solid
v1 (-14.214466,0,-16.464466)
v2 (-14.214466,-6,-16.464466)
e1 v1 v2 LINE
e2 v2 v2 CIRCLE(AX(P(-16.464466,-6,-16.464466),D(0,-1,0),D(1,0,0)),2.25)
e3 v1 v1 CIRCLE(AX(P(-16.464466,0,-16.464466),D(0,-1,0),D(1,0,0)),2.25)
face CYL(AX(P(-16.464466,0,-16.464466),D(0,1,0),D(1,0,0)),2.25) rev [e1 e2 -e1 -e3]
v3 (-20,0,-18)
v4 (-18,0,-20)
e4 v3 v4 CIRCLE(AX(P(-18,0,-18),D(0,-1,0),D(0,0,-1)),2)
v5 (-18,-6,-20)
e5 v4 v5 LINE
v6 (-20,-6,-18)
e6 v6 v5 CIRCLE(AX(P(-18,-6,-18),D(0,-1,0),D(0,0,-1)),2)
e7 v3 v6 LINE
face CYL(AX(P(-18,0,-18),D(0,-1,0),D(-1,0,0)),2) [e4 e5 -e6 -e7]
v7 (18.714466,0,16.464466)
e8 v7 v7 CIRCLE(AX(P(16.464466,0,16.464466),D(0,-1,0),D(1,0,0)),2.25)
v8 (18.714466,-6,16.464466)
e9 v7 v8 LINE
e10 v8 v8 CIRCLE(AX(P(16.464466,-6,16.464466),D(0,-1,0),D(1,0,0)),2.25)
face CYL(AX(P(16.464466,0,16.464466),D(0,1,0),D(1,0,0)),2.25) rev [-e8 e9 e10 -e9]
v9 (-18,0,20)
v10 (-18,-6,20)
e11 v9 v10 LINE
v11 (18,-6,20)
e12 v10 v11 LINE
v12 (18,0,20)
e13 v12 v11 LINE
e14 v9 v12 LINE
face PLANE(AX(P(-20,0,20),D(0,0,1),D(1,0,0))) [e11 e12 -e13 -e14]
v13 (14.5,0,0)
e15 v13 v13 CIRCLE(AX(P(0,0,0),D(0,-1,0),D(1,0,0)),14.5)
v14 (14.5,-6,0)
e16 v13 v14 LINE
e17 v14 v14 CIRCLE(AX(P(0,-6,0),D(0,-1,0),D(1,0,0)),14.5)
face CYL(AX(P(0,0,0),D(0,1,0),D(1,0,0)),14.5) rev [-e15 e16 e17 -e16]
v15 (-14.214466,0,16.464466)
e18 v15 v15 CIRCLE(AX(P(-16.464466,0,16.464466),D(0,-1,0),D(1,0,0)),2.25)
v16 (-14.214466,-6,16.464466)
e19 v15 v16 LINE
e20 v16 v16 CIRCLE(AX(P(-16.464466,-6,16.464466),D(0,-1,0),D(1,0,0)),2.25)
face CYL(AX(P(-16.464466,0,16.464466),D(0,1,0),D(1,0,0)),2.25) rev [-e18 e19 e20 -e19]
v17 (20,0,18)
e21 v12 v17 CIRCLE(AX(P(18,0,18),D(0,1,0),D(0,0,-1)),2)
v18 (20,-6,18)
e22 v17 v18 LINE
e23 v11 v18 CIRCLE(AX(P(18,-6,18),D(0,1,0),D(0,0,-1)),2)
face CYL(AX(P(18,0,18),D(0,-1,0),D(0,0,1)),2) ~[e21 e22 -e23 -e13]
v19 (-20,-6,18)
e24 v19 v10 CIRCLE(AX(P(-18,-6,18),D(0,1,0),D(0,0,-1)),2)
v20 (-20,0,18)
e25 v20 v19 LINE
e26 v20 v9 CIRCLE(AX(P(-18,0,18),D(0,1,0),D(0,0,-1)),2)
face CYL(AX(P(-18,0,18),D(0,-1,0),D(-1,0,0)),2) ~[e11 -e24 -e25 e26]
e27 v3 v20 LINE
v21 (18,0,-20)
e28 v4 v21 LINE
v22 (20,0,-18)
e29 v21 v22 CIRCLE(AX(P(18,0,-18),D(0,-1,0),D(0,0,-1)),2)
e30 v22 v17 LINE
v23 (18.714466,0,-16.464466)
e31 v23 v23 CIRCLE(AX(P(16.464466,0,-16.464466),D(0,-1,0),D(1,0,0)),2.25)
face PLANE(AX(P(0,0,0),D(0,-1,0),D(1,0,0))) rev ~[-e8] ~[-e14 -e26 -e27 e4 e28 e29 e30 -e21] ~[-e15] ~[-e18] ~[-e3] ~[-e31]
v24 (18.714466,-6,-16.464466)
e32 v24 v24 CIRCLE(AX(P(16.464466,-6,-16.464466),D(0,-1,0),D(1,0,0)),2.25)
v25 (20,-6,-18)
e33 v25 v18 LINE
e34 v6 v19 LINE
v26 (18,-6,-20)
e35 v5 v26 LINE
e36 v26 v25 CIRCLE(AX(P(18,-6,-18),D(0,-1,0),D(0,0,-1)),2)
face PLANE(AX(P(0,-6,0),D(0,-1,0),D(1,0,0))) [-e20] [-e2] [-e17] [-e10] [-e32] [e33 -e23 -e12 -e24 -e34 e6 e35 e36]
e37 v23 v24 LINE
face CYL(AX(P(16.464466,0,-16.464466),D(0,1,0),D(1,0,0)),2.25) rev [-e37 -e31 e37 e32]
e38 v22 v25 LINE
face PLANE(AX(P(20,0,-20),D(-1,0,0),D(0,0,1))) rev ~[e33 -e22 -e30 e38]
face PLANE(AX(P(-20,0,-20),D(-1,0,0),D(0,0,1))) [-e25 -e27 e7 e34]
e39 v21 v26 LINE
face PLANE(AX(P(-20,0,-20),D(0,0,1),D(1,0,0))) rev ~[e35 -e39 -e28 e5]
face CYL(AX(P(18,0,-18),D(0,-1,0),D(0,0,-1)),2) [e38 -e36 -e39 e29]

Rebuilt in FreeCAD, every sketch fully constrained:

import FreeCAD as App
import Part
import Sketcher

V = App.Vector


def edges_at(feature, points):
    """Names of the edges that pass closest to the given points."""
    edges = feature.Shape.Edges
    near = lambda p: min(range(len(edges)), key=lambda i: edges[i].distToShape(Part.Vertex(*p))[0])
    return sorted({f"Edge{near(p) + 1}" for p in points})


def add_polygon(sketch, points):
    """Adds a closed chain of lines whose ends are joined by coincident constraints."""
    first, n = sketch.GeometryCount, len(points)
    for a, b in zip(points, points[1:] + points[:1]):
        sketch.addGeometry(Part.LineSegment(App.Vector(*a, 0), App.Vector(*b, 0)), False)
    for i in range(n):
        sketch.addConstraint(Sketcher.Constraint("Coincident", first + i, 2, first + (i + 1) % n, 1))

doc = App.newDocument("Part")
params = doc.addObject("Spreadsheet::Sheet", "Params")
for row, (alias, value) in enumerate([
    ("sketch1_diameter", "29 mm"),
    ("sketch1_diameter2", "4.5 mm"),
    ("sketch1_width", "40 mm"),
    ("pad1_length", "6 mm"),
    ("fillet_radius", "2 mm"),
], start=1):
    params.set(f"A{row}", alias)
    params.set(f"B{row}", "=" + value)
    params.setAlias(f"B{row}", alias)

body = doc.addObject("PartDesign::Body", "Body")

# Sketch on XZ plane
sketch1 = body.newObject("Sketcher::SketchObject", "Sketch")
sketch1.AttachmentSupport = (doc.getObject("XZ_Plane"), [""])
sketch1.MapMode = "FlatFace"
add_polygon(sketch1, [(-20, 20), (-20, -20), (20, -20), (20, 20)])  # lines 0-3
sketch1.addGeometry(Part.Circle(V(-16.464466, -16.464466, 0), V(0, 0, 1), 2.25), False)  # 4
sketch1.addGeometry(Part.Circle(V(16.464466, -16.464466, 0), V(0, 0, 1), 2.25), False)  # 5
sketch1.addGeometry(Part.Circle(V(-16.464466, 16.464466, 0), V(0, 0, 1), 2.25), False)  # 6
sketch1.addGeometry(Part.Circle(V(0, 0, 0), V(0, 0, 1), 14.5), False)  # 7
sketch1.addGeometry(Part.Circle(V(16.464466, 16.464466, 0), V(0, 0, 1), 2.25), False)  # 8
sketch1.addConstraint([
    Sketcher.Constraint("Vertical", 0),
    Sketcher.Constraint("Horizontal", 1),
    Sketcher.Constraint("Vertical", 2),
    Sketcher.Constraint("Horizontal", 3),
    Sketcher.Constraint("Coincident", 7, 3, -1, 1),
    Sketcher.Constraint("Equal", 4, 5),
    Sketcher.Constraint("Equal", 5, 6),
    Sketcher.Constraint("Equal", 6, 8),
    Sketcher.Constraint("Symmetric", 5, 3, 6, 3, -1, 1),
    Sketcher.Constraint("Symmetric", 4, 3, 8, 3, -1, 1),
    Sketcher.Constraint("Symmetric", 0, 2, 2, 2, -1, 1),
    Sketcher.Constraint("Symmetric", 4, 3, 5, 3, -2),
    Sketcher.Constraint("Equal", 3, 0),
    Sketcher.Constraint("Diameter", 7, 29.0),
    Sketcher.Constraint("Diameter", 4, 4.5),
    Sketcher.Constraint("DistanceX", 1, 1, 1, 2, 40.0),
    Sketcher.Constraint("DistanceX", 4, 3, -1, 1, 16.464466),
    Sketcher.Constraint("DistanceY", 4, 3, -1, 1, 16.464466),
])
sketch1.setExpression("Constraints[17]", "Params.sketch1_diameter")
sketch1.setExpression("Constraints[18]", "Params.sketch1_diameter2")
sketch1.setExpression("Constraints[19]", "Params.sketch1_width")
pad1 = body.newObject("PartDesign::Pad", "Pad")
pad1.Profile = sketch1
pad1.setExpression("Length", "Params.pad1_length")
doc.recompute()

fillet = body.newObject("PartDesign::Fillet", "Fillet")
fillet.Base = (pad1, edges_at(pad1, [
    (-20, -3, 20),
    (20, -3, 20),
    (20, -3, -20),
    (-20, -3, -20),
]))
fillet.setExpression("Radius", "Params.fillet_radius")

doc.recompute()
